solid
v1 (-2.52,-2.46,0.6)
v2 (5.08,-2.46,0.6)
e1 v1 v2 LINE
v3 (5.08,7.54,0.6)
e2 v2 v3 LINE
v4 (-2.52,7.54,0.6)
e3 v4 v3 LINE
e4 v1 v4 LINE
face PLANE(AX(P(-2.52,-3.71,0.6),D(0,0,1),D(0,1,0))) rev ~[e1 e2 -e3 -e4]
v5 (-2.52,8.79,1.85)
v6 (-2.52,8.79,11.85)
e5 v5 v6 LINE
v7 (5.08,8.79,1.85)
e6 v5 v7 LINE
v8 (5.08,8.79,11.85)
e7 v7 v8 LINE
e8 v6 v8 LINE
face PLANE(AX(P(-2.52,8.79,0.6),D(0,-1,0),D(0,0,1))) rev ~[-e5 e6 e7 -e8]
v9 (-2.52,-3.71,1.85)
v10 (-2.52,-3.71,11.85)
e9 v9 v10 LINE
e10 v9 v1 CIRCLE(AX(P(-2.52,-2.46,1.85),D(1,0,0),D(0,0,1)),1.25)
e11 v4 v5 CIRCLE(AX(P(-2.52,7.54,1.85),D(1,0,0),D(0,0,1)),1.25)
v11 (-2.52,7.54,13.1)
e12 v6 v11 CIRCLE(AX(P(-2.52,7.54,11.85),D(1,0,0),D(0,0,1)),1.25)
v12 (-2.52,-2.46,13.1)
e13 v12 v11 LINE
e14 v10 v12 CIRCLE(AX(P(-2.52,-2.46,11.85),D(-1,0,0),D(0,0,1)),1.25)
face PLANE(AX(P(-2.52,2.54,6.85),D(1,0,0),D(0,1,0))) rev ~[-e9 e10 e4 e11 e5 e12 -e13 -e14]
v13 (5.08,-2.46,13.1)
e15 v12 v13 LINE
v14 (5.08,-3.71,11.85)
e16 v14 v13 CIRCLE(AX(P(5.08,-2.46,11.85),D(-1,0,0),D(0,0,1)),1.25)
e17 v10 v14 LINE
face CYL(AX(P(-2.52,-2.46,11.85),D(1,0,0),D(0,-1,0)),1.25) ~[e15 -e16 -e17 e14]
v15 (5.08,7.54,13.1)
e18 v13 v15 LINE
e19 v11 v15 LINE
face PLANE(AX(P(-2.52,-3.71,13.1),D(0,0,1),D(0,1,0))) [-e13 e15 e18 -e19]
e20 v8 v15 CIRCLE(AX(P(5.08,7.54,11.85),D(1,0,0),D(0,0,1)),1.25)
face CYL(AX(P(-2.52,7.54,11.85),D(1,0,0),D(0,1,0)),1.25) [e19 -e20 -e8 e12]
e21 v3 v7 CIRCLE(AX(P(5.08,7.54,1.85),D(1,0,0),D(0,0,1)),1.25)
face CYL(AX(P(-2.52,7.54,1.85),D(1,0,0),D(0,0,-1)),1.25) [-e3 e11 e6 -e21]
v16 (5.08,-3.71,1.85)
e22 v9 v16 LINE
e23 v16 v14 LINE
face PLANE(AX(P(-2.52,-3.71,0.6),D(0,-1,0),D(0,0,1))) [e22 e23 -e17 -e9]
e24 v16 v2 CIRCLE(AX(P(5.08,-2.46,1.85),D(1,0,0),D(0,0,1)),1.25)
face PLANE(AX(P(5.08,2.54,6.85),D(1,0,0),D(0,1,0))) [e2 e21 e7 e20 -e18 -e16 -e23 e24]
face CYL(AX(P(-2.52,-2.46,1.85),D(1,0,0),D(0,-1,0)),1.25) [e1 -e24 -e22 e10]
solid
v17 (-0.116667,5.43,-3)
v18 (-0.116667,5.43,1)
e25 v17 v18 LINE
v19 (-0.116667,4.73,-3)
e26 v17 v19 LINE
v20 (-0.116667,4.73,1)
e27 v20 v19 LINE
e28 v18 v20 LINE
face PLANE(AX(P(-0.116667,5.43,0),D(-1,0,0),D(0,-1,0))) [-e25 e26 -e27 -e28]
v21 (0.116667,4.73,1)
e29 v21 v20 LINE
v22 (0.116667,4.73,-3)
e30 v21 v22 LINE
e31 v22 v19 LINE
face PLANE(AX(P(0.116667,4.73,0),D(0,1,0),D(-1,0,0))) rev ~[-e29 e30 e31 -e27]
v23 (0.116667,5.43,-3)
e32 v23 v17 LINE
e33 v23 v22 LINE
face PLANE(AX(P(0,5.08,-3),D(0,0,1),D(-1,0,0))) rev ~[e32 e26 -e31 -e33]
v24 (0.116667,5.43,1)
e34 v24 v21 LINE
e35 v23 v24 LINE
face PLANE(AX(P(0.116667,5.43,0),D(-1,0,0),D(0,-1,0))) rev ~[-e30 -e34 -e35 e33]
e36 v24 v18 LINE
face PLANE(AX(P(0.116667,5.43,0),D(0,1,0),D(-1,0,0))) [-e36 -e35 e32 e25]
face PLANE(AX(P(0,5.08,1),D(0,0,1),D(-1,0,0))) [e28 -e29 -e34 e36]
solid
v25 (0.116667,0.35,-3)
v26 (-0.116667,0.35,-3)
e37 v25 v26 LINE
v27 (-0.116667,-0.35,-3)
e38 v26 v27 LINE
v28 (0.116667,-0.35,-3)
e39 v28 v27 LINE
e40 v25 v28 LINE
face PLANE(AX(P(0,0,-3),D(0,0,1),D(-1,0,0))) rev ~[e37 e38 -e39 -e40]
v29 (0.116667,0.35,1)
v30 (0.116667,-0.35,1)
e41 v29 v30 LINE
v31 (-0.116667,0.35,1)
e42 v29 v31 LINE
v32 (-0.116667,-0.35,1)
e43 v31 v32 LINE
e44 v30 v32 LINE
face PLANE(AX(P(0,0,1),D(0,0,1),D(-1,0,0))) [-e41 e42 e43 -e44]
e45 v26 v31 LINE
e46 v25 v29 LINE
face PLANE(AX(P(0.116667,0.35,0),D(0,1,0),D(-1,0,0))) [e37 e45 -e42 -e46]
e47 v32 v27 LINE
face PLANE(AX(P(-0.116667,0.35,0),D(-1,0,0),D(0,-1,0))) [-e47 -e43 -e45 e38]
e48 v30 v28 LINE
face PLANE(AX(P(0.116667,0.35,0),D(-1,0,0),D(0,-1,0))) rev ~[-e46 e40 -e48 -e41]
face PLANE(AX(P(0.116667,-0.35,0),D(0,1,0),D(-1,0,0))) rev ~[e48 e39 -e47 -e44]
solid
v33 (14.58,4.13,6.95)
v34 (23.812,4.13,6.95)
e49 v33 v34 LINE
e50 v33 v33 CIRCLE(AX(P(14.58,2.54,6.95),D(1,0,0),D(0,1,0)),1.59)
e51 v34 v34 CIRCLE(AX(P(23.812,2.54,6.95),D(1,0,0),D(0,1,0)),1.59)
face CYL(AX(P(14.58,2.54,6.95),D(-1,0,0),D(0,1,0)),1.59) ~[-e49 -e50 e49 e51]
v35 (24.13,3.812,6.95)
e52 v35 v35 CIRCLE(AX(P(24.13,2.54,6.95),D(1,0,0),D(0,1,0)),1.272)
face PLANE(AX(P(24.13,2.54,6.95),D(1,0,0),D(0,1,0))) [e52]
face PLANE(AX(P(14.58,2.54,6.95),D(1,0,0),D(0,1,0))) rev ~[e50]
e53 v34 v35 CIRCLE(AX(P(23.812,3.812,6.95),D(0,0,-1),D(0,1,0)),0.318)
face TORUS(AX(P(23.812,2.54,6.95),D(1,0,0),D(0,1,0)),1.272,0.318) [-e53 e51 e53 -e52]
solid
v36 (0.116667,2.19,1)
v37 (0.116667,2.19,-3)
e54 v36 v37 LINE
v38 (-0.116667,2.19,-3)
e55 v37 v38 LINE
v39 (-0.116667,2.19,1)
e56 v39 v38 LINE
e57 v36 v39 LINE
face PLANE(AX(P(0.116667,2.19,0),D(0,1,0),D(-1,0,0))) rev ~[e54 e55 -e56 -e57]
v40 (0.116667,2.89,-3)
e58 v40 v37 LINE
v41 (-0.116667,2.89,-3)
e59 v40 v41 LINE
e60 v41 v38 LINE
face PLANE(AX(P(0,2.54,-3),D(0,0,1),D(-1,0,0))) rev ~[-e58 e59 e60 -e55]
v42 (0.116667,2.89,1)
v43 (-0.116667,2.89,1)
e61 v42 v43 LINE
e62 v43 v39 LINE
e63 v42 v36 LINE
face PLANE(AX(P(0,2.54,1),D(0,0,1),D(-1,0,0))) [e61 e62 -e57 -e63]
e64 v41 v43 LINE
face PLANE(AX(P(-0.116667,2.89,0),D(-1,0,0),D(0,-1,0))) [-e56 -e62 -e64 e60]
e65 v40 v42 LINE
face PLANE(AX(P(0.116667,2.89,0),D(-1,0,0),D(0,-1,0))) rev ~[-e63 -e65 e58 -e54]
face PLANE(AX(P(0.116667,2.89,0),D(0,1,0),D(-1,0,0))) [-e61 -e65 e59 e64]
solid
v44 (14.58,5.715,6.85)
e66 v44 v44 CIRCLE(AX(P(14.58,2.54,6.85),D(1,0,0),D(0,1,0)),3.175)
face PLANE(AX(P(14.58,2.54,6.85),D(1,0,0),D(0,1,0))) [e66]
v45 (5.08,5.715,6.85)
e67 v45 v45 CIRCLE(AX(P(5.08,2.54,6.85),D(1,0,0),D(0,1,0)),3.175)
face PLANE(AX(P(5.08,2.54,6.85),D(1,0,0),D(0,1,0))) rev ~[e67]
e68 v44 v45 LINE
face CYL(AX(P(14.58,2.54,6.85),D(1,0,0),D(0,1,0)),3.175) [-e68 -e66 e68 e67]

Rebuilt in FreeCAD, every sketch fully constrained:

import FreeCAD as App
import Part
import Sketcher


def edges_at(feature, points):
    """Names of the edges that pass closest to the given points."""
    edges = feature.Shape.Edges
    near = lambda p: min(range(len(edges)), key=lambda i: edges[i].distToShape(Part.Vertex(*p))[0])
    return sorted({f"Edge{near(p) + 1}" for p in points})

doc = App.newDocument("Part")
body = doc.addObject("PartDesign::Body", "Body")

# Sketch on YZ plane
sketch1 = body.newObject("Sketcher::SketchObject", "Sketch")
sketch1.AttachmentSupport = (doc.getObject("YZ_Plane"), [""])
sketch1.MapMode = "FlatFace"
sketch1.AttachmentOffset = App.Placement(App.Vector(0, 0, 14.58), App.Rotation())
sketch1.addGeometry(Part.Circle(App.Vector(2.5, 6.8, 0), App.Vector(0, 0, 1), 3.2), False)
sketch1.addConstraint([
    Sketcher.Constraint("Diameter", 0, 6.35),
    Sketcher.Constraint("DistanceX", -1, 1, 0, 3, 2.54),
    Sketcher.Constraint("DistanceY", -1, 1, 0, 3, 6.85),
])
pad1 = body.newObject("PartDesign::Pad", "Pad")
pad1.Profile = sketch1
pad1.Length = 9.5
pad1.Reversed = True
body2 = doc.addObject("PartDesign::Body", "Body001")
body2.AllowCompound = True

# Sketch on XY plane
sketch2 = body2.newObject("Sketcher::SketchObject", "Sketch001")
sketch2.AttachmentSupport = (doc.getObject("XY_Plane001"), [""])
sketch2.MapMode = "FlatFace"
sketch2.addGeometry([
    Part.LineSegment(App.Vector(0.12, -0.35, 0), App.Vector(0.12, 0.35, 0)),  # 0
    Part.LineSegment(App.Vector(0.12, 0.35, 0), App.Vector(-0.12, 0.35, 0)),  # 1
    Part.LineSegment(App.Vector(-0.12, 0.35, 0), App.Vector(-0.12, -0.35, 0)),  # 2
    Part.LineSegment(App.Vector(-0.12, -0.35, 0), App.Vector(0.12, -0.35, 0)),  # 3
    Part.LineSegment(App.Vector(0.12, 2.19, 0), App.Vector(0.12, 2.89, 0)),  # 4
    Part.LineSegment(App.Vector(0.12, 2.89, 0), App.Vector(-0.12, 2.89, 0)),  # 5
    Part.LineSegment(App.Vector(-0.12, 2.89, 0), App.Vector(-0.12, 2.19, 0)),  # 6
    Part.LineSegment(App.Vector(-0.12, 2.19, 0), App.Vector(0.12, 2.19, 0)),  # 7
    Part.LineSegment(App.Vector(0.12, 4.73, 0), App.Vector(0.12, 5.43, 0)),  # 8
    Part.LineSegment(App.Vector(0.12, 5.43, 0), App.Vector(-0.12, 5.43, 0)),  # 9
    Part.LineSegment(App.Vector(-0.12, 5.43, 0), App.Vector(-0.12, 4.73, 0)),  # 10
    Part.LineSegment(App.Vector(-0.12, 4.73, 0), App.Vector(0.12, 4.73, 0)),  # 11
], False)
sketch2.addConstraint([
    Sketcher.Constraint("Coincident", 0, 2, 1, 1),
    Sketcher.Constraint("Coincident", 1, 2, 2, 1),
    Sketcher.Constraint("Coincident", 2, 2, 3, 1),
    Sketcher.Constraint("Coincident", 3, 2, 0, 1),
    Sketcher.Constraint("Coincident", 4, 2, 5, 1),
    Sketcher.Constraint("Coincident", 5, 2, 6, 1),
    Sketcher.Constraint("Coincident", 6, 2, 7, 1),
    Sketcher.Constraint("Coincident", 7, 2, 4, 1),
    Sketcher.Constraint("Coincident", 8, 2, 9, 1),
    Sketcher.Constraint("Coincident", 9, 2, 10, 1),
    Sketcher.Constraint("Coincident", 10, 2, 11, 1),
    Sketcher.Constraint("Coincident", 11, 2, 8, 1),
    Sketcher.Constraint("Vertical", 0),
    Sketcher.Constraint("Horizontal", 1),
    Sketcher.Constraint("Vertical", 2),
    Sketcher.Constraint("Horizontal", 3),
    Sketcher.Constraint("Vertical", 4),
    Sketcher.Constraint("Horizontal", 5),
    Sketcher.Constraint("Vertical", 6),
    Sketcher.Constraint("Horizontal", 7),
    Sketcher.Constraint("Vertical", 8),
    Sketcher.Constraint("Horizontal", 9),
    Sketcher.Constraint("Vertical", 10),
    Sketcher.Constraint("Horizontal", 11),
    Sketcher.Constraint("Symmetric", 0, 2, 2, 2, -1, 1),
    Sketcher.Constraint("Vertical", 3, 2, 4, 2),
    Sketcher.Constraint("Vertical", 2, 2, 5, 2),
    Sketcher.Constraint("Vertical", 7, 2, 8, 2),
    Sketcher.Constraint("Vertical", 6, 2, 9, 2),
    Sketcher.Constraint("Equal", 2, 4),
    Sketcher.Constraint("Equal", 6, 8),
    Sketcher.Constraint("DistanceY", 0, 1, 0, 2, 0.7),
    Sketcher.Constraint("DistanceY", -1, 1, 4, 2, 2.89),
    Sketcher.Constraint("DistanceY", -1, 1, 8, 2, 5.43),
    Sketcher.Constraint("DistanceX", 1, 2, 1, 1, 0.233334),
])
pad2 = body2.newObject("PartDesign::Pad", "Pad001")
pad2.Profile = sketch2
pad2.Type = "TwoLengths"
pad2.Length = 1
pad2.Length2 = 3
body3 = doc.addObject("PartDesign::Body", "Body002")

# Sketch on YZ plane
sketch3 = body3.newObject("Sketcher::SketchObject", "Sketch002")
sketch3.AttachmentSupport = (doc.getObject("YZ_Plane002"), [""])
sketch3.MapMode = "FlatFace"
sketch3.AttachmentOffset = App.Placement(App.Vector(0, 0, 14.58), App.Rotation())
sketch3.addGeometry(Part.Circle(App.Vector(2.5, 7, 0), App.Vector(0, 0, 1), 1.6), False)
sketch3.addConstraint([
    Sketcher.Constraint("Diameter", 0, 3.18),
    Sketcher.Constraint("DistanceX", -1, 1, 0, 3, 2.54),
    Sketcher.Constraint("DistanceY", -1, 1, 0, 3, 6.95),
])
pad3 = body3.newObject("PartDesign::Pad", "Pad002")
pad3.Profile = sketch3
pad3.Length = 9.55
doc.recompute()

fillet = body3.newObject("PartDesign::Fillet", "Fillet")
fillet.Base = (pad3, edges_at(pad3, [(24.13, 0.95, 6.95)]))
fillet.Radius = 0.318
body4 = doc.addObject("PartDesign::Body", "Body003")

# Sketch on YZ plane
sketch4 = body4.newObject("Sketcher::SketchObject", "Sketch003")
sketch4.AttachmentSupport = (doc.getObject("YZ_Plane003"), [""])
sketch4.MapMode = "FlatFace"
sketch4.AttachmentOffset = App.Placement(App.Vector(0, 0, -2.52), App.Rotation())
sketch4.addGeometry([
    Part.LineSegment(App.Vector(-4, 13, 0), App.Vector(-4, 1, 0)),
    Part.LineSegment(App.Vector(-4, 1, 0), App.Vector(9, 1, 0)),
    Part.LineSegment(App.Vector(9, 1, 0), App.Vector(9, 13, 0)),
    Part.LineSegment(App.Vector(9, 13, 0), App.Vector(-4, 13, 0)),
], False)
sketch4.addConstraint([
    Sketcher.Constraint("Coincident", 0, 2, 1, 1),
    Sketcher.Constraint("Coincident", 1, 2, 2, 1),
    Sketcher.Constraint("Coincident", 2, 2, 3, 1),
    Sketcher.Constraint("Coincident", 3, 2, 0, 1),
    Sketcher.Constraint("Vertical", 0),
    Sketcher.Constraint("Horizontal", 1),
    Sketcher.Constraint("Vertical", 2),
    Sketcher.Constraint("Horizontal", 3),
    Sketcher.Constraint("Equal", 3, 0),
    Sketcher.Constraint("DistanceX", 1, 1, 1, 2, 12.5),
    Sketcher.Constraint("DistanceY", -1, 1, 0, 2, 0.6),
    Sketcher.Constraint("DistanceX", 0, 2, -1, 1, 3.71),
])
pad4 = body4.newObject("PartDesign::Pad", "Pad003")
pad4.Profile = sketch4
pad4.Length = 7.6
doc.recompute()

fillet2 = body4.newObject("PartDesign::Fillet", "Fillet001")
fillet2.Base = (pad4, edges_at(pad4, [
    (1.28, -3.71, 13.1),
    (1.28, 8.79, 13.1),
    (1.28, -3.71, 0.6),
    (1.28, 8.79, 0.6),
]))
fillet2.Radius = 1.25

doc.recompute()
